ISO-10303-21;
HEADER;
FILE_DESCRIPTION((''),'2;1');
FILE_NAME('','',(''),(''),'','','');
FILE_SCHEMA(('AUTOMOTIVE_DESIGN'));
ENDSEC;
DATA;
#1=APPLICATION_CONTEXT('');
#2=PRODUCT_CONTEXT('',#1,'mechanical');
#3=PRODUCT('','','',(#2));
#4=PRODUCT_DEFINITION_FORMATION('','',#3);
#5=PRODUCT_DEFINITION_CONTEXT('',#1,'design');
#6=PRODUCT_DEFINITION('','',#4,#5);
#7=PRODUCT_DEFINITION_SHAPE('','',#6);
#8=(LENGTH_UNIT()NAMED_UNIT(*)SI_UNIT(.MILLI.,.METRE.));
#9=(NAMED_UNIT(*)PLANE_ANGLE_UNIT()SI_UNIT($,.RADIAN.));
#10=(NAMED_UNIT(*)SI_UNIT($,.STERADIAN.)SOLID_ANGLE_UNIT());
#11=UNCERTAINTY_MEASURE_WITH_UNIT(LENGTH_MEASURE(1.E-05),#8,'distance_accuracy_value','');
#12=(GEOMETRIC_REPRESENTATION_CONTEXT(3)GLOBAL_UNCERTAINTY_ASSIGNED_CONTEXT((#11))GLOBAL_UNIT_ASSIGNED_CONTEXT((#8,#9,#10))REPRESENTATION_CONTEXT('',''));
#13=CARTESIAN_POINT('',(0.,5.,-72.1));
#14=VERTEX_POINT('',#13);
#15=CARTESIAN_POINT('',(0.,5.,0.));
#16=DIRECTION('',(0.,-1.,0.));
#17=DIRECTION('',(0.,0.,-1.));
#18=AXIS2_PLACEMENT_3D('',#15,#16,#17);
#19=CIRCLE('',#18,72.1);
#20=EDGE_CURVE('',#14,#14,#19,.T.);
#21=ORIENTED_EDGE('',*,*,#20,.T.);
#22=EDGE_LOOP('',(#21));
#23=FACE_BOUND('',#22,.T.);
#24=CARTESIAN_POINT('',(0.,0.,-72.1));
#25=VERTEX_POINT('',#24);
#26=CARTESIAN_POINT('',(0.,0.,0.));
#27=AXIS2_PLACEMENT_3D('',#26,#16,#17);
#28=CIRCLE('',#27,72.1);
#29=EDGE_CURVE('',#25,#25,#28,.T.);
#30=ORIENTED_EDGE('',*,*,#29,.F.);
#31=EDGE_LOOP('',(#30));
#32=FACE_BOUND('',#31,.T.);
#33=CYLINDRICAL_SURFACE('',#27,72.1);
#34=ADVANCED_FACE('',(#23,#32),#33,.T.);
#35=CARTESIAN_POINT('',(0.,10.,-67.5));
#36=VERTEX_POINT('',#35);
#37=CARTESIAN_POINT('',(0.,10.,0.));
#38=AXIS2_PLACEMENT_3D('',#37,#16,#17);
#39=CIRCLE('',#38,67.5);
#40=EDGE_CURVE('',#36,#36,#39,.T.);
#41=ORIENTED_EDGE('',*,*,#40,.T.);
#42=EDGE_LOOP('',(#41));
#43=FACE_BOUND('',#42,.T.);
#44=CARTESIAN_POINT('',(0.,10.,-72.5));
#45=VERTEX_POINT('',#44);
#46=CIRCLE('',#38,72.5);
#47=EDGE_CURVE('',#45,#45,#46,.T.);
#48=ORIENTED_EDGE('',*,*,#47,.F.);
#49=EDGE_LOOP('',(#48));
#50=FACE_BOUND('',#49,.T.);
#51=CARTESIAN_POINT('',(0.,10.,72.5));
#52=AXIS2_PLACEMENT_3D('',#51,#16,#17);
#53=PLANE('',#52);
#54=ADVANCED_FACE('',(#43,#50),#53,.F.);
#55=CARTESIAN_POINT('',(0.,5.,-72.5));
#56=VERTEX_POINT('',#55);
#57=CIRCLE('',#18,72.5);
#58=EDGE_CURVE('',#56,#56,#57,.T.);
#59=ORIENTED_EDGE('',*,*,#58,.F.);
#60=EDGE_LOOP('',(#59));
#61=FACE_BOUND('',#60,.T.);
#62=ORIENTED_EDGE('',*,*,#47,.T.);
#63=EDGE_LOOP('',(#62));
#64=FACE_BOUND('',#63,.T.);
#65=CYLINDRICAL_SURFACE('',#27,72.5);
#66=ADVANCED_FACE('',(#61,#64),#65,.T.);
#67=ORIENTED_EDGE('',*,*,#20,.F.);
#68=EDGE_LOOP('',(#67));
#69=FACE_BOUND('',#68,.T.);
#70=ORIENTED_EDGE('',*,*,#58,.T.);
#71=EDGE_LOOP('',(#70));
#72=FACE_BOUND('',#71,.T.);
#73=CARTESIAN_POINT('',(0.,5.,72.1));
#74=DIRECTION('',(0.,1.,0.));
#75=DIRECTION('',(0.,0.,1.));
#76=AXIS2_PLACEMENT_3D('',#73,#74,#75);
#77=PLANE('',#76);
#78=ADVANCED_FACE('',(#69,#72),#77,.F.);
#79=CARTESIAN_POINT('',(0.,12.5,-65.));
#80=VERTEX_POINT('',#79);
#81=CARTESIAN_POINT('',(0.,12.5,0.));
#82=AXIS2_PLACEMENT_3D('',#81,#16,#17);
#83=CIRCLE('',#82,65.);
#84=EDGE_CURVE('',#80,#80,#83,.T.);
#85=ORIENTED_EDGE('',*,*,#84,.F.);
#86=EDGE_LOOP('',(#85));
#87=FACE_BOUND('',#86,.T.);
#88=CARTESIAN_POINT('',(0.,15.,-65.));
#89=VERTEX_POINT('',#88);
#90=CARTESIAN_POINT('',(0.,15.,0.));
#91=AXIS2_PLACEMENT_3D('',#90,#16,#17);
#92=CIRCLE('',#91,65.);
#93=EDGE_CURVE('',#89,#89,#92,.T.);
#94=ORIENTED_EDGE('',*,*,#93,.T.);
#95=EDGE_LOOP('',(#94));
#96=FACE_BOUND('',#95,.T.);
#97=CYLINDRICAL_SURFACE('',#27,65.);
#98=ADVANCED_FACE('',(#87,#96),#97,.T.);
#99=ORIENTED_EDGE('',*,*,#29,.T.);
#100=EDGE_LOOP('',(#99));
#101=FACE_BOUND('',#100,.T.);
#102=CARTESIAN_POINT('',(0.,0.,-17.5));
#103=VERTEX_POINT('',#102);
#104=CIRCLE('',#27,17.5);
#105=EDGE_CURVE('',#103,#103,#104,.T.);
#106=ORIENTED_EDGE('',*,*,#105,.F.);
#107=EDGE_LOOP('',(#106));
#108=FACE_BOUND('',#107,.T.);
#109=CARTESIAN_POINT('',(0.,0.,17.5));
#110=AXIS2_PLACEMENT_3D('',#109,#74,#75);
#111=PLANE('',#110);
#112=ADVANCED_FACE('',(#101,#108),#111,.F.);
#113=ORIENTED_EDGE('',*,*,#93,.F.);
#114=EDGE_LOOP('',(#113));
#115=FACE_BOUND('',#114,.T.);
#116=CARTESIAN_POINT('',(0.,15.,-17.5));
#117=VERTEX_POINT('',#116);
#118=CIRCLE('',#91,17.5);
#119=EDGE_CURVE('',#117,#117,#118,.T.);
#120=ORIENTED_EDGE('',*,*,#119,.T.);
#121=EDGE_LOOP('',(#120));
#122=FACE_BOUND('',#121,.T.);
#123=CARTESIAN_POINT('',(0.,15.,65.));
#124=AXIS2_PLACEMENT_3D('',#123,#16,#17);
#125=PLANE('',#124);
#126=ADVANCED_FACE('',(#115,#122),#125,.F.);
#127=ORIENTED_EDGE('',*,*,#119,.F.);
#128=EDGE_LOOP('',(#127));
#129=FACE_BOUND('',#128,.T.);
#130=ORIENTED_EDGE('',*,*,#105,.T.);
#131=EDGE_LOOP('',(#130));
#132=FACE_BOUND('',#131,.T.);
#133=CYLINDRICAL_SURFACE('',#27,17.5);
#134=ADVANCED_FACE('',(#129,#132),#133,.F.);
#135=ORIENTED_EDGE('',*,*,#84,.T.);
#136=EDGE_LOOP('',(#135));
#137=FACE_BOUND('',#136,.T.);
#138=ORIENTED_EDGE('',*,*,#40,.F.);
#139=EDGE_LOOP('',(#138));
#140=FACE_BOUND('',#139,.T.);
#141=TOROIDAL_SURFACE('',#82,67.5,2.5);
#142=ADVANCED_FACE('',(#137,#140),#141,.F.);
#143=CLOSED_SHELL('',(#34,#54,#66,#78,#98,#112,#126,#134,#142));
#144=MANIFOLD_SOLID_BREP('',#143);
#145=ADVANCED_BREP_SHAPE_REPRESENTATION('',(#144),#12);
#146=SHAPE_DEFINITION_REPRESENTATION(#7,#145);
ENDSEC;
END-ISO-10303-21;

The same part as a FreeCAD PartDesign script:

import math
import FreeCAD as App
import Part
import Sketcher

V = App.Vector
Q = App.Units.Quantity

doc = App.newDocument("Part")
body = doc.addObject("PartDesign::Body", "Body")

sketch1 = doc.addObject("Sketcher::SketchObject", "Sketch")
body.addObject(sketch1)
sketch1.AttachmentSupport = (doc.YZ_Plane, [""])
sketch1.MapMode = "FlatFace"
sketch1.addGeometry([
    Part.LineSegment(V(0, 17.5, 0), V(15, 17.5, 0)),
    Part.LineSegment(V(15, 17.5, 0), V(15, 65, 0)),
    Part.LineSegment(V(15, 65, 0), V(12.5, 65, 0)),
    Part.ArcOfCircle(Part.Circle(V(12.5, 67.5, 0), V(0, 0, 1), 2.5), math.radians(180), math.radians(270)),
    Part.LineSegment(V(10, 67.5, 0), V(10, 72.5, 0)),
    Part.LineSegment(V(10, 72.5, 0), V(5, 72.5, 0)),
    Part.LineSegment(V(5, 72.5, 0), V(5, 72.1, 0)),
    Part.LineSegment(V(5, 72.1, 0), V(0, 72.1, 0)),
    Part.LineSegment(V(0, 72.1, 0), V(0, 17.5, 0)),
], False)
sketch1.addConstraint([
    Sketcher.Constraint("Coincident", 0, 2, 1, 1),
    Sketcher.Constraint("Coincident", 1, 2, 2, 1),
    Sketcher.Constraint("Tangent", 2, 2, 3, 2),
    Sketcher.Constraint("Tangent", 3, 1, 4, 1),
    Sketcher.Constraint("Coincident", 4, 2, 5, 1),
    Sketcher.Constraint("Coincident", 5, 2, 6, 1),
    Sketcher.Constraint("Coincident", 6, 2, 7, 1),
    Sketcher.Constraint("Coincident", 7, 2, 8, 1),
    Sketcher.Constraint("Coincident", 8, 2, 0, 1),
    Sketcher.Constraint("Horizontal", 0),
    Sketcher.Constraint("Vertical", 1),
    Sketcher.Constraint("Horizontal", 2),
    Sketcher.Constraint("Vertical", 4),
    Sketcher.Constraint("Horizontal", 5),
    Sketcher.Constraint("Vertical", 6),
    Sketcher.Constraint("Horizontal", 7),
    Sketcher.Constraint("Vertical", 8),
    Sketcher.Constraint("PointOnObject", 7, 2, -2),
    Sketcher.Constraint("Equal", 5, 7),
    Sketcher.Constraint("Equal", 7, 4),
    Sketcher.Constraint("Radius", 3, Q("2.5 mm")),
    Sketcher.Constraint("DistanceX", 0, 1, 0, 2, Q("15 mm")),
    Sketcher.Constraint("DistanceX", 5, 2, 5, 1, Q("5 mm")),
    Sketcher.Constraint("DistanceY", 1, 1, 1, 2, Q("47.5 mm")),
    Sketcher.Constraint("DistanceY", 6, 2, 6, 1, Q("0.4 mm")),
    Sketcher.Constraint("DistanceY", -1, 1, 1, 2, Q("65 mm")),
])
revolution = doc.addObject("PartDesign::Revolution", "Revolution")
body.addObject(revolution)
revolution.Profile = sketch1
revolution.ReferenceAxis = (sketch1, ["H_Axis"])
revolution.Angle = 360

doc.recompute()
